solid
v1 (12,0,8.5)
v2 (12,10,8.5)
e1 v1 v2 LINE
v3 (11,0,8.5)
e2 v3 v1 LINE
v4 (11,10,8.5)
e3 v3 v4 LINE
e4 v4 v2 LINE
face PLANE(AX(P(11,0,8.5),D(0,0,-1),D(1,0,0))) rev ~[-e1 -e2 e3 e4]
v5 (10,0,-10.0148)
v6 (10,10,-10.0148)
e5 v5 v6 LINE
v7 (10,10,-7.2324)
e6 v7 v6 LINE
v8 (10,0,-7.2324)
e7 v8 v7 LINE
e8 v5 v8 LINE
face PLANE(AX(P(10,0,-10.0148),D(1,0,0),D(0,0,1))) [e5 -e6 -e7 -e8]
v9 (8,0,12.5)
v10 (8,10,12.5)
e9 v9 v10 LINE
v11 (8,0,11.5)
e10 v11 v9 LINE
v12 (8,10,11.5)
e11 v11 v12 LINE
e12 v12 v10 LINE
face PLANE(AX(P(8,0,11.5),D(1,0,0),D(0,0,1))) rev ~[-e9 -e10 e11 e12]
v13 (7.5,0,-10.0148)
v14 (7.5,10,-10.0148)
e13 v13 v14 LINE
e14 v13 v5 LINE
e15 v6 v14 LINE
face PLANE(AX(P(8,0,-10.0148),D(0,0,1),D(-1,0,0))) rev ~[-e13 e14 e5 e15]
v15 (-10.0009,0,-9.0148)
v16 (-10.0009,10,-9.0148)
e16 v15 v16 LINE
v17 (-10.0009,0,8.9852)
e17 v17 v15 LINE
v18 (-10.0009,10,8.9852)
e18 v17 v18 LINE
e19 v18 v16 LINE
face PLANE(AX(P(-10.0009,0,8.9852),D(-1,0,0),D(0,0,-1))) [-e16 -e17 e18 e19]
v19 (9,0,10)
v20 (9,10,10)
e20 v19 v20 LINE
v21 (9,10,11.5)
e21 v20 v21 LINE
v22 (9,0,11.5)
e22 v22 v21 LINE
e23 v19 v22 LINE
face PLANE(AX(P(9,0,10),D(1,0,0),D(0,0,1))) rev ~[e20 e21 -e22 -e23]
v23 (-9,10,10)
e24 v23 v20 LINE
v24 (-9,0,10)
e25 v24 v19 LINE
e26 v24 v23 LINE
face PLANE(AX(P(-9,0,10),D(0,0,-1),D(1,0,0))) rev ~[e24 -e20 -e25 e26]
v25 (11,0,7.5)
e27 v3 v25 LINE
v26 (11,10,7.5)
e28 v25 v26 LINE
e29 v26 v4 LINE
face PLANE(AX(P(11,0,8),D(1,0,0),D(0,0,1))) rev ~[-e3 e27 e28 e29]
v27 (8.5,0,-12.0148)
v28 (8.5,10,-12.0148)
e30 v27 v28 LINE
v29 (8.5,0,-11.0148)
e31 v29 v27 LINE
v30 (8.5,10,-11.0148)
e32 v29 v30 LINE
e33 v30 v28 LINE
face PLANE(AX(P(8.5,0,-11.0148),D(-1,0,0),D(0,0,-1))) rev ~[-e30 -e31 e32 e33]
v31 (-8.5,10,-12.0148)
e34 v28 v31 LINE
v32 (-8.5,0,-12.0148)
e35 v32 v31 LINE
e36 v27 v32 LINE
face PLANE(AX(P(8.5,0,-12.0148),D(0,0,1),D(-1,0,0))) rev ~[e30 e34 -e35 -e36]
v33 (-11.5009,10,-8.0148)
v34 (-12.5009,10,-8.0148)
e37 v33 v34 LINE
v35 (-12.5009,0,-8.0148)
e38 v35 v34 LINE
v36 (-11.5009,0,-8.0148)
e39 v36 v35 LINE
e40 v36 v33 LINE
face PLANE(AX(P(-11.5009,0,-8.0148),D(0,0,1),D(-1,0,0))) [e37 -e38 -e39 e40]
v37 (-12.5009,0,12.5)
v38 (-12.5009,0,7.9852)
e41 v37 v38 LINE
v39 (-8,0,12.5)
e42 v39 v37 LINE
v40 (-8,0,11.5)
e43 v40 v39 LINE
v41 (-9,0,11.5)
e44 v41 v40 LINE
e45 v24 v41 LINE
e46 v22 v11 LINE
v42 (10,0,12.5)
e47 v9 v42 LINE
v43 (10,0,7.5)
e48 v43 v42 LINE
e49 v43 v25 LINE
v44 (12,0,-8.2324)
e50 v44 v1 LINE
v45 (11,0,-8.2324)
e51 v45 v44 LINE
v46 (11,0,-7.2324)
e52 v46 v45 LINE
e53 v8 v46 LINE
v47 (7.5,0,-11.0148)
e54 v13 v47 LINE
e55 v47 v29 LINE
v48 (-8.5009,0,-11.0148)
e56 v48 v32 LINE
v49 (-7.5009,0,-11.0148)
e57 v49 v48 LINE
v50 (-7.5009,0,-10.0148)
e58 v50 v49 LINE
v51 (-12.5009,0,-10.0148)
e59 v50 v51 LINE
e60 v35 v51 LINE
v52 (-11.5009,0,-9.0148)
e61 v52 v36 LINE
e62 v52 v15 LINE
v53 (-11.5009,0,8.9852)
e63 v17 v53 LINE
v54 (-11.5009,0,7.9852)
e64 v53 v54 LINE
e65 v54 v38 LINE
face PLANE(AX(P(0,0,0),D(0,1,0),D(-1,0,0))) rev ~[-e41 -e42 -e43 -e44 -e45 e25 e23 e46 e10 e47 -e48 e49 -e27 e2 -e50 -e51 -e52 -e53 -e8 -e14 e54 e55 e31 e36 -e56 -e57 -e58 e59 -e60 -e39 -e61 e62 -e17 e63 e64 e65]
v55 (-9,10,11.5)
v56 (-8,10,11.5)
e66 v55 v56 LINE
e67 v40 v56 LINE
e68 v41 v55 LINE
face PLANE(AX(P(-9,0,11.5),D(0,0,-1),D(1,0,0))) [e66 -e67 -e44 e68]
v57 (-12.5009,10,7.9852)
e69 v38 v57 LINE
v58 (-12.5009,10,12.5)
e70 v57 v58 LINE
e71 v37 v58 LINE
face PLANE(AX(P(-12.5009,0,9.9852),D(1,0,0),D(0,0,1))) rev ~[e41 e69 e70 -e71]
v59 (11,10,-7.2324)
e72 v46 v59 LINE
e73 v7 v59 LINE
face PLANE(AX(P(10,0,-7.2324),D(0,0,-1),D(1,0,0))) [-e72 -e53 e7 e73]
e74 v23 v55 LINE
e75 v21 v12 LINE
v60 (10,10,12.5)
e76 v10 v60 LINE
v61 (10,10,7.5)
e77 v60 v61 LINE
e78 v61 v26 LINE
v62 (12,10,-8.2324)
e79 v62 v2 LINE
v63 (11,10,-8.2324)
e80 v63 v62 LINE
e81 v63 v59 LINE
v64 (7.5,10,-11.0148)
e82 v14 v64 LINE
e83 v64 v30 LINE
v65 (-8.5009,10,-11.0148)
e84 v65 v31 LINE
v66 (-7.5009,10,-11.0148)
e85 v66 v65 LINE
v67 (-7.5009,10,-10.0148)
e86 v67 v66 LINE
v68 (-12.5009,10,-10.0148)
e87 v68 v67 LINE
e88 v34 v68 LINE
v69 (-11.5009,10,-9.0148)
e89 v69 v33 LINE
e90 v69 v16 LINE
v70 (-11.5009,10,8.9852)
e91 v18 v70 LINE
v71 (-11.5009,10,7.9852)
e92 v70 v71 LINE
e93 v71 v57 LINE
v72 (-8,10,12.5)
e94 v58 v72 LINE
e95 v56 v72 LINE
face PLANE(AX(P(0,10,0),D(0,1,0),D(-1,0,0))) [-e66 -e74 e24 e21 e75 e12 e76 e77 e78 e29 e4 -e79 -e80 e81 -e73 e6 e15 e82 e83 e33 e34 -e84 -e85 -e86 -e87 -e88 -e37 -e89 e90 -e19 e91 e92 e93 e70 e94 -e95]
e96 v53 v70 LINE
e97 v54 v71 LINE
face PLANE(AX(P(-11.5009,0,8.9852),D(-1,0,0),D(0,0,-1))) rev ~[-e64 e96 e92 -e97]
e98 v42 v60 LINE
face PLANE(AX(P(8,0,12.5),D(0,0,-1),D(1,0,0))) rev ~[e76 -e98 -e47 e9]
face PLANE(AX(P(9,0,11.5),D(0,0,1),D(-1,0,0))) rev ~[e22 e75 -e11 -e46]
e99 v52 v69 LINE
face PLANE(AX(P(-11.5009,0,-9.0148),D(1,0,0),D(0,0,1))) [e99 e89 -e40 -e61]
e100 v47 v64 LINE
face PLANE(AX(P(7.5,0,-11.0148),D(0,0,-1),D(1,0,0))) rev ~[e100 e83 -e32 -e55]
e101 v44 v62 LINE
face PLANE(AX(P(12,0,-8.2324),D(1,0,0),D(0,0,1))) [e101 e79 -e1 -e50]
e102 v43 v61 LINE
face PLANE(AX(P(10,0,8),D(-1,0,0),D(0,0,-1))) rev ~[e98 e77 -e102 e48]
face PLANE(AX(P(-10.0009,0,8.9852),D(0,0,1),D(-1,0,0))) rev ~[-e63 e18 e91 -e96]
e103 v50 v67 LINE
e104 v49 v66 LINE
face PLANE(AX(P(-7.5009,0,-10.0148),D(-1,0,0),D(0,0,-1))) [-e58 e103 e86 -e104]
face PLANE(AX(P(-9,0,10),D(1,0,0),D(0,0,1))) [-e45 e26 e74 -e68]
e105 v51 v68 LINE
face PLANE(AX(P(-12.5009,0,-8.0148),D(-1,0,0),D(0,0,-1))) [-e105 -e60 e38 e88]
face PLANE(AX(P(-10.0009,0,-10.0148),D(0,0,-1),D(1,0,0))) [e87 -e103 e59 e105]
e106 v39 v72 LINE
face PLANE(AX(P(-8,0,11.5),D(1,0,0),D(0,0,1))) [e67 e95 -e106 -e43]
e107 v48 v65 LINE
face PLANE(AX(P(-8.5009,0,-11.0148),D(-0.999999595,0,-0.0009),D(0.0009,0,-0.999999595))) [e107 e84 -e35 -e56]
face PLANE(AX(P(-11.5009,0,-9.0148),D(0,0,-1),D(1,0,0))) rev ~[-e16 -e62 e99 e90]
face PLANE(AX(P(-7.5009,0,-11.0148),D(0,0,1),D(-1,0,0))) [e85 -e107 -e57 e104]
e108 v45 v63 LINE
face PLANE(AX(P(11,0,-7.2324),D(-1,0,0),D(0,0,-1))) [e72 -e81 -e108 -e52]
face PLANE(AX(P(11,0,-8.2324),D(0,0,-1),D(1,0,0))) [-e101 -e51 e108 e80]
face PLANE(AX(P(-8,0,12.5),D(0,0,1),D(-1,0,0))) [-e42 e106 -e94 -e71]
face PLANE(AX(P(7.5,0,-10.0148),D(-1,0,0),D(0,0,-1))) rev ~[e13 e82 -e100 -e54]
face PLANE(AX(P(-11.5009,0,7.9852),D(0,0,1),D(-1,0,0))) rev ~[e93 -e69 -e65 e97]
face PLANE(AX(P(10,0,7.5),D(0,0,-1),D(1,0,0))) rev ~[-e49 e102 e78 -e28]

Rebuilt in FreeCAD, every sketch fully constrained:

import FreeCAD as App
import Part
import Sketcher

V = App.Vector


def add_polygon(sketch, points):
    """Adds a closed chain of lines whose ends are joined by coincident constraints."""
    first, n = sketch.GeometryCount, len(points)
    for a, b in zip(points, points[1:] + points[:1]):
        sketch.addGeometry(Part.LineSegment(App.Vector(*a, 0), App.Vector(*b, 0)), False)
    for i in range(n):
        sketch.addConstraint(Sketcher.Constraint("Coincident", first + i, 2, first + (i + 1) % n, 1))

doc = App.newDocument("Part")
params = doc.addObject("Spreadsheet::Sheet", "Params")
for row, (alias, value) in enumerate([
    ("sketch1_width", "1 mm"),
    ("sketch1_width2", "2 mm"),
    ("sketch1_width3", "1.5 mm"),
    ("sketch1_width4", "18 mm"),
    ("sketch1_width5", "17 mm"),
    ("pad1_length", "10 mm"),
], start=1):
    params.set(f"A{row}", alias)
    params.set(f"B{row}", "=" + value)
    params.setAlias(f"B{row}", alias)

body = doc.addObject("PartDesign::Body", "Body")

# Sketch on XZ plane
sketch1 = body.newObject("Sketcher::SketchObject", "Sketch")
sketch1.AttachmentSupport = (doc.getObject("XZ_Plane"), [""])
sketch1.MapMode = "FlatFace"
add_polygon(sketch1, [(-12.5, -10), (-12.5, -8), (-11.5, -8), (-11.5, -9), (-10, -9), (-10, 9), (-11.5, 9), (-11.5, 8), (-12.5, 8), (-12.5, 12.5), (-8, 12.5), (-8, 11.5), (-9, 11.5), (-9, 10), (9, 10), (9, 11.5), (8, 11.5), (8, 12.5), (10, 12.5), (10, 7.5), (11, 7.5), (11, 8.5), (12, 8.5), (12, -8.2), (11, -8.2), (11, -7.2), (10, -7.2), (10, -10), (7.5, -10), (7.5, -11), (8.5, -11), (8.5, -12), (-8.5, -12), (-8.5, -11), (-7.5, -11), (-7.5, -10)])  # lines 0-35
sketch1.addConstraint([
    Sketcher.Constraint("Vertical", 0),
    Sketcher.Constraint("Horizontal", 1),
    Sketcher.Constraint("Vertical", 2),
    Sketcher.Constraint("Horizontal", 3),
    Sketcher.Constraint("Vertical", 4),
    Sketcher.Constraint("Horizontal", 5),
    Sketcher.Constraint("Vertical", 6),
    Sketcher.Constraint("Horizontal", 7),
    Sketcher.Constraint("Vertical", 8),
    Sketcher.Constraint("Horizontal", 9),
    Sketcher.Constraint("Vertical", 10),
    Sketcher.Constraint("Horizontal", 11),
    Sketcher.Constraint("Vertical", 12),
    Sketcher.Constraint("Horizontal", 13),
    Sketcher.Constraint("Vertical", 14),
    Sketcher.Constraint("Horizontal", 15),
    Sketcher.Constraint("Vertical", 16),
    Sketcher.Constraint("Horizontal", 17),
    Sketcher.Constraint("Vertical", 18),
    Sketcher.Constraint("Horizontal", 19),
    Sketcher.Constraint("Vertical", 20),
    Sketcher.Constraint("Horizontal", 21),
    Sketcher.Constraint("Vertical", 22),
    Sketcher.Constraint("Horizontal", 23),
    Sketcher.Constraint("Vertical", 24),
    Sketcher.Constraint("Horizontal", 25),
    Sketcher.Constraint("Vertical", 26),
    Sketcher.Constraint("Horizontal", 27),
    Sketcher.Constraint("Vertical", 28),
    Sketcher.Constraint("Horizontal", 29),
    Sketcher.Constraint("Vertical", 30),
    Sketcher.Constraint("Horizontal", 31),
    Sketcher.Constraint("Horizontal", 33),
    Sketcher.Constraint("Vertical", 34),
    Sketcher.Constraint("Horizontal", 35),
    Sketcher.Constraint("Symmetric", 11, 2, 14, 2, -2),
    Sketcher.Constraint("Symmetric", 9, 2, 16, 2, -2),
    Sketcher.Constraint("Horizontal", 29, 2, 32, 2),
    Sketcher.Constraint("Horizontal", 27, 2, 34, 2),
    Sketcher.Constraint("Vertical", 2, 2, 5, 2),
    Sketcher.Constraint("Vertical", 0, 2, 7, 2),
    Sketcher.Constraint("Vertical", 20, 2, 23, 2),
    Sketcher.Constraint("Vertical", 18, 2, 25, 2),
    Sketcher.Constraint("Equal", 7, 11),
    Sketcher.Constraint("Equal", 15, 19),
    Sketcher.Constraint("Equal", 19, 21),
    Sketcher.Constraint("Equal", 25, 29),
    Sketcher.Constraint("Equal", 29, 33),
    Sketcher.Constraint("Equal", 17, 0),
    Sketcher.Constraint("Equal", 33, 2),
    Sketcher.Constraint("Equal", 13, 4),
    Sketcher.Constraint("Equal", 2, 6),
    Sketcher.Constraint("Equal", 6, 10),
    Sketcher.Constraint("Equal", 5, 12),
    Sketcher.Constraint("Equal", 35, 18),
    Sketcher.Constraint("Equal", 16, 20),
    Sketcher.Constraint("Equal", 20, 24),
    Sketcher.Constraint("Equal", 24, 28),
    Sketcher.Constraint("Equal", 28, 30),
    Sketcher.Constraint("DistanceX", 1, 1, 1, 2, 1.0),
    Sketcher.Constraint("DistanceX", 17, 1, 17, 2, 2.0),
    Sketcher.Constraint("DistanceX", 3, 1, 3, 2, 1.5),
    Sketcher.Constraint("DistanceY", 20, 2, 13, 2, 1.5),
    Sketcher.Constraint("DistanceX", 29, 2, 26, 2, 1.5),
    Sketcher.Constraint("DistanceX", 13, 1, 13, 2, 18.0),
    Sketcher.Constraint("DistanceX", 31, 2, 31, 1, 17.0),
    Sketcher.Constraint("DistanceY", -1, 1, 12, 2, 10.0),
    Sketcher.Constraint("DistanceX", 9, 1, 9, 2, 4.501),
    Sketcher.Constraint("DistanceY", 8, 1, 8, 2, 4.5148),
    Sketcher.Constraint("DistanceY", 22, 2, 22, 1, 16.7324),
])
sketch1.setExpression("Constraints[95]", "Params.sketch1_width")
sketch1.setExpression("Constraints[96]", "Params.sketch1_width2")
sketch1.setExpression("Constraints[97]", "Params.sketch1_width3")
sketch1.setExpression("Constraints[100]", "Params.sketch1_width4")
sketch1.setExpression("Constraints[101]", "Params.sketch1_width5")
pad1 = body.newObject("PartDesign::Pad", "Pad")
pad1.Profile = sketch1
pad1.setExpression("Length", "Params.pad1_length")
pad1.Reversed = True

doc.recompute()
